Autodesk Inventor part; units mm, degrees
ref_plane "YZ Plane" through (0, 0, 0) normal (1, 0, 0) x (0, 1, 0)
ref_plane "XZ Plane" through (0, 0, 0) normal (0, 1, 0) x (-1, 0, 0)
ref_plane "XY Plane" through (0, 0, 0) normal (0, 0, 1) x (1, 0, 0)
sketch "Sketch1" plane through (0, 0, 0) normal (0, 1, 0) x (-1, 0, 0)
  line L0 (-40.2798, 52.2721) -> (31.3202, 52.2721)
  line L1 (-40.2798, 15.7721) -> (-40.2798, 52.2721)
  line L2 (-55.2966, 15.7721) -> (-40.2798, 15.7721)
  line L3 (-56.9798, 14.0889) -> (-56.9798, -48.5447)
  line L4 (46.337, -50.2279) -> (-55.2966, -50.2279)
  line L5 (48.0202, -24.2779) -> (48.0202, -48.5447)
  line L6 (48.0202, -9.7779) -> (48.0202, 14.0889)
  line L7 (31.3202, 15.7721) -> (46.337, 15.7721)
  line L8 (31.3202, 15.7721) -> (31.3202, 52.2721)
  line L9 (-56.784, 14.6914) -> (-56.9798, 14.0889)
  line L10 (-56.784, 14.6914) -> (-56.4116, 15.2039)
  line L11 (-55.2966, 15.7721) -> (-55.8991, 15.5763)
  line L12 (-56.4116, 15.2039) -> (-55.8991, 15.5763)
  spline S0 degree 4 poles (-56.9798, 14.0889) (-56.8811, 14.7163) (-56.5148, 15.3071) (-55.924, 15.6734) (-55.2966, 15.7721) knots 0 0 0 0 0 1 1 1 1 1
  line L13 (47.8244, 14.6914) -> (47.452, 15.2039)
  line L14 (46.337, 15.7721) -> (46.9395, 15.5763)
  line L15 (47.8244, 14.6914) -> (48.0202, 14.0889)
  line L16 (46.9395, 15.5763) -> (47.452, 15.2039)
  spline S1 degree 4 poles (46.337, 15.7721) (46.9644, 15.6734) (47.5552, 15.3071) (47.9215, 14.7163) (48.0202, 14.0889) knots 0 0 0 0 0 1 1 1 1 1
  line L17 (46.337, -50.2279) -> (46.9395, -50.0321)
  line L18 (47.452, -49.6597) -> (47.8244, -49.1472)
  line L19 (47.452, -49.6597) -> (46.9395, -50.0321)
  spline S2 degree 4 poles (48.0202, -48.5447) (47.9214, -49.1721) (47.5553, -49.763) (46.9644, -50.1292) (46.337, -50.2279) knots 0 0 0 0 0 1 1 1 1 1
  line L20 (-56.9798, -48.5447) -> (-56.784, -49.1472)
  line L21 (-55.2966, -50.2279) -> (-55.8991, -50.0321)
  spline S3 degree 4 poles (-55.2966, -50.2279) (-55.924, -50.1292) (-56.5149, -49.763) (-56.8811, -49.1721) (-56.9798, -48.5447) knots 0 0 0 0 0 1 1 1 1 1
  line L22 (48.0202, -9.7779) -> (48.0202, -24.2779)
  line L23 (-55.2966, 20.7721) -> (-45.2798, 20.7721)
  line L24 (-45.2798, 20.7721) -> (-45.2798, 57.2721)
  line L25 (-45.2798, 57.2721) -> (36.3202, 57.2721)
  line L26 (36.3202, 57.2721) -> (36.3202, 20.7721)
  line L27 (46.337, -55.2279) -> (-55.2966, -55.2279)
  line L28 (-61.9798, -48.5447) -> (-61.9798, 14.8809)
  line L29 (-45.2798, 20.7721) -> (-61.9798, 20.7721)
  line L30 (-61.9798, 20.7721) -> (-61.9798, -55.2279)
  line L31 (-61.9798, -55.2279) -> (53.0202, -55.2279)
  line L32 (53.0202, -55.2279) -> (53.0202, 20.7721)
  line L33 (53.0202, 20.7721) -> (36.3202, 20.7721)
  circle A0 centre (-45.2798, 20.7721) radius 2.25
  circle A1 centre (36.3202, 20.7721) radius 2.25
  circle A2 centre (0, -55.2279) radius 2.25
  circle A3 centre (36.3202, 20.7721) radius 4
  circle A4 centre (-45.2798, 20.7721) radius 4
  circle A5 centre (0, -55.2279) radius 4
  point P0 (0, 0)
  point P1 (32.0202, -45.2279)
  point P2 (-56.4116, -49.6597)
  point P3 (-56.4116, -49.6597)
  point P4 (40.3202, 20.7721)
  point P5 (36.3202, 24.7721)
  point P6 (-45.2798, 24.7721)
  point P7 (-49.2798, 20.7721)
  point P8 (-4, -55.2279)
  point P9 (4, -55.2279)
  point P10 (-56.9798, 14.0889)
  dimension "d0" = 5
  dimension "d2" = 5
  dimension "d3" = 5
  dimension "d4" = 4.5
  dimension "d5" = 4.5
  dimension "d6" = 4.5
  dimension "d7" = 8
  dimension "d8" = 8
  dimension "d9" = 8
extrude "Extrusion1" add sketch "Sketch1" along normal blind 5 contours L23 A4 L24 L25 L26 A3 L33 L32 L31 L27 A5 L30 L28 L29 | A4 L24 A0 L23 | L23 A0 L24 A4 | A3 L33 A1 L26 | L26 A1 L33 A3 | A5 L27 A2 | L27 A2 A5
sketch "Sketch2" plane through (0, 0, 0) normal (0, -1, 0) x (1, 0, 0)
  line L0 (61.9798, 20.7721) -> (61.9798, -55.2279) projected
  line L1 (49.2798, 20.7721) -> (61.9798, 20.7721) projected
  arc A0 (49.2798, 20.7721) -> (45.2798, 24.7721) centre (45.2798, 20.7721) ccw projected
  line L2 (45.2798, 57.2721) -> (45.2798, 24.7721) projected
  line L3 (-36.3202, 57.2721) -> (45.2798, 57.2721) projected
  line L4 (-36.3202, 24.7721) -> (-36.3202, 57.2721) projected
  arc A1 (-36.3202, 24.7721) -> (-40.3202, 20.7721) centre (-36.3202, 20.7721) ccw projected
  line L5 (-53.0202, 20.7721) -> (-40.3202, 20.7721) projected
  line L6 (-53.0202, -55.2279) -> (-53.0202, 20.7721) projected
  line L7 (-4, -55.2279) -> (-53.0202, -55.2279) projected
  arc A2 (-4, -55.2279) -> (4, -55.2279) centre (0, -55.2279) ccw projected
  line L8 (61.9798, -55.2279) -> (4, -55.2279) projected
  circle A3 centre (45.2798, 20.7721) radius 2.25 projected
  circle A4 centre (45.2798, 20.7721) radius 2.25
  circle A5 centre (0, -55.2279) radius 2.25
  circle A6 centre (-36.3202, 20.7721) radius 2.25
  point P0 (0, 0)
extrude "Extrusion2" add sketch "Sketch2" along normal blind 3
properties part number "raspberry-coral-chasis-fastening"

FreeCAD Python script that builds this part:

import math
import FreeCAD as App
import Part
import Sketcher
from FreeCAD import Vector
Q = App.Units.Quantity

doc = App.newDocument("Part")
body = doc.addObject("PartDesign::Body", "Body")

# Sketch on XZ plane
sketch1 = body.newObject("Sketcher::SketchObject", "Sketch")
sketch1.AttachmentSupport = (doc.getObject("XZ_Plane"), [""])
sketch1.MapMode = "FlatFace"
sketch1.addGeometry([
    Part.LineSegment(Vector(49.2798, 20.7721, 0), Vector(61.9798, 20.7721, 0)),  # 0
    Part.LineSegment(Vector(61.9798, 20.7721, 0), Vector(61.9798, -55.2279, 0)),  # 1
    Part.LineSegment(Vector(61.9798, -55.2279, 0), Vector(4, -55.2279, 0)),  # 2
    Part.ArcOfCircle(Part.Circle(Vector(0, -55.2279, 0), Vector(0, 0, 1), 4), math.radians(180), math.radians(360)),  # 3
    Part.LineSegment(Vector(-4, -55.2279, 0), Vector(-53.0202, -55.2279, 0)),  # 4
    Part.LineSegment(Vector(-53.0202, -55.2279, 0), Vector(-53.0202, 20.7721, 0)),  # 5
    Part.LineSegment(Vector(-53.0202, 20.7721, 0), Vector(-40.3202, 20.7721, 0)),  # 6
    Part.ArcOfCircle(Part.Circle(Vector(-36.3202, 20.7721, 0), Vector(0, 0, 1), 4), math.radians(90), math.radians(180)),  # 7
    Part.LineSegment(Vector(-36.3202, 24.7721, 0), Vector(-36.3202, 57.2721, 0)),  # 8
    Part.LineSegment(Vector(-36.3202, 57.2721, 0), Vector(45.2798, 57.2721, 0)),  # 9
    Part.LineSegment(Vector(45.2798, 57.2721, 0), Vector(45.2798, 24.7721, 0)),  # 10
    Part.ArcOfCircle(Part.Circle(Vector(45.2798, 20.7721, 0), Vector(0, 0, 1), 4), math.radians(0), math.radians(90)),  # 11
    Part.LineSegment(Vector(40.2798, 15.7721, 0), Vector(40.2798, 52.2721, 0)),  # 12
    Part.LineSegment(Vector(40.2798, 52.2721, 0), Vector(-31.3202, 52.2721, 0)),  # 13
    Part.LineSegment(Vector(-31.3202, 52.2721, 0), Vector(-31.3202, 15.7721, 0)),  # 14
    Part.LineSegment(Vector(-31.3202, 15.7721, 0), Vector(-46.337, 15.7721, 0)),  # 15
    Part.BSplineCurve([Vector(-46.337, 15.7721, 0), Vector(-46.493852, 15.747425, 0), Vector(-46.648416, 15.706024, 0), Vector(-46.797757, 15.648572, 0), Vector(-46.939503, 15.576306, 0)], [5, 5], [0, 0.250002766], False, 4, [1, 1, 1, 1, 1], False),  # 16
    Part.BSplineCurve([Vector(-46.939503, 15.576306, 0), Vector(-47.081247, 15.504042, 0), Vector(-47.215396, 15.416967, 0), Vector(-47.339582, 15.316318, 0), Vector(-47.452, 15.2039, 0)], [5, 5], [0.250002766, 0.5], False, 4, [1, 1, 1, 1, 1], False),  # 17
    Part.BSplineCurve([Vector(-47.452, 15.2039, 0), Vector(-47.564418, 15.091482, 0), Vector(-47.665067, 14.967296, 0), Vector(-47.752142, 14.833147, 0), Vector(-47.824406, 14.691403, 0)], [5, 5], [0.5, 0.749997234], False, 4, [1, 1, 1, 1, 1], False),  # 18
    Part.BSplineCurve([Vector(-47.824406, 14.691403, 0), Vector(-47.896672, 14.549657, 0), Vector(-47.954124, 14.400316, 0), Vector(-47.995525, 14.245752, 0), Vector(-48.0202, 14.0889, 0)], [5, 5], [0.749997234, 1], False, 4, [1, 1, 1, 1, 1], False),  # 19
    Part.LineSegment(Vector(-48.0202, 14.0889, 0), Vector(-48.0202, -48.5447, 0)),  # 20
    Part.BSplineCurve([Vector(-48.0202, -48.5447, 0), Vector(-47.995501, -48.701545, 0), Vector(-47.954097, -48.856108, 0), Vector(-47.896651, -49.005451, 0), Vector(-47.824398, -49.147199, 0)], [5, 5], [0, 0.249991621], False, 4, [1, 1, 1, 1, 1], False),  # 21
    Part.BSplineCurve([Vector(-47.824398, -49.147199, 0), Vector(-47.752142, -49.288953, 0), Vector(-47.665077, -49.423112, 0), Vector(-47.564437, -49.547305, 0), Vector(-47.452025, -49.659725, 0)], [5, 5], [0.249991621, 0.49999305], False, 4, [1, 1, 1, 1, 1], False),  # 22
    Part.BSplineCurve([Vector(-47.452025, -49.659725, 0), Vector(-47.339611, -49.772148, 0), Vector(-47.215424, -49.872798, 0), Vector(-47.081268, -49.959871, 0), Vector(-46.939515, -50.03213, 0)], [5, 5], [0.49999305, 0.749999212], False, 4, [1, 1, 1, 1, 1], False),  # 23
    Part.BSplineCurve([Vector(-46.939515, -50.03213, 0), Vector(-46.797765, -50.104387, 0), Vector(-46.64842, -50.161831, 0), Vector(-46.49385, -50.203225, 0), Vector(-46.337, -50.2279, 0)], [5, 5], [0.749999212, 1], False, 4, [1, 1, 1, 1, 1], False),  # 24
    Part.LineSegment(Vector(-46.337, -50.2279, 0), Vector(55.2966, -50.2279, 0)),  # 25
    Part.BSplineCurve([Vector(55.2966, -50.2279, 0), Vector(55.453449, -50.203225, 0), Vector(55.608018, -50.161832, 0), Vector(55.757364, -50.104388, 0), Vector(55.899116, -50.032131, 0)], [5, 5], [0, 0.249999147], False, 4, [1, 1, 1, 1, 1], False),  # 26
    Part.BSplineCurve([Vector(55.899116, -50.032131, 0), Vector(56.182622, -49.887617, 0), Vector(56.435749, -49.683849, 0), Vector(56.639517, -49.430722, 0), Vector(56.784031, -49.147216, 0)], [5, 5], [0.249999147, 0.750000853], False, 4, [1, 1, 1, 1, 1], False),  # 27
    Part.BSplineCurve([Vector(56.784031, -49.147216, 0), Vector(56.856288, -49.005464, 0), Vector(56.913732, -48.856118, 0), Vector(56.955125, -48.701549, 0), Vector(56.9798, -48.5447, 0)], [5, 5], [0.750000853, 1], False, 4, [1, 1, 1, 1, 1], False),  # 28
    Part.LineSegment(Vector(56.9798, -48.5447, 0), Vector(56.9798, 14.0889, 0)),  # 29
    Part.BSplineCurve([Vector(56.9798, 14.0889, 0), Vector(56.955125, 14.245752, 0), Vector(56.913724, 14.400316, 0), Vector(56.856272, 14.549657, 0), Vector(56.784006, 14.691403, 0)], [5, 5], [0, 0.250002766], False, 4, [1, 1, 1, 1, 1], False),  # 30
    Part.BSplineCurve([Vector(56.784006, 14.691403, 0), Vector(56.711742, 14.833147, 0), Vector(56.624667, 14.967296, 0), Vector(56.524018, 15.091482, 0), Vector(56.4116, 15.2039, 0)], [5, 5], [0.250002766, 0.5], False, 4, [1, 1, 1, 1, 1], False),  # 31
    Part.BSplineCurve([Vector(56.4116, 15.2039, 0), Vector(56.299182, 15.316318, 0), Vector(56.174996, 15.416967, 0), Vector(56.040847, 15.504042, 0), Vector(55.899103, 15.576306, 0)], [5, 5], [0.5, 0.749997234], False, 4, [1, 1, 1, 1, 1], False),  # 32
    Part.BSplineCurve([Vector(55.899103, 15.576306, 0), Vector(55.757357, 15.648572, 0), Vector(55.608016, 15.706024, 0), Vector(55.453452, 15.747425, 0), Vector(55.2966, 15.7721, 0)], [5, 5], [0.749997234, 1], False, 4, [1, 1, 1, 1, 1], False),  # 33
    Part.LineSegment(Vector(55.2966, 15.7721, 0), Vector(40.2798, 15.7721, 0)),  # 34
    Part.Circle(Vector(45.2798, 20.7721, 0), Vector(0, 0, 1), 2.25),  # 35
    Part.Circle(Vector(-36.3202, 20.7721, 0), Vector(0, 0, 1), 2.25),  # 36
    Part.Circle(Vector(0, -55.2279, 0), Vector(0, 0, 1), 2.25),  # 37
], False)
sketch1.addConstraint([
    Sketcher.Constraint("Block", 16),
    Sketcher.Constraint("Block", 17),
    Sketcher.Constraint("Block", 18),
    Sketcher.Constraint("Block", 19),
    Sketcher.Constraint("Block", 21),
    Sketcher.Constraint("Block", 22),
    Sketcher.Constraint("Block", 23),
    Sketcher.Constraint("Block", 24),
    Sketcher.Constraint("Block", 26),
    Sketcher.Constraint("Block", 27),
    Sketcher.Constraint("Block", 28),
    Sketcher.Constraint("Block", 30),
    Sketcher.Constraint("Block", 31),
    Sketcher.Constraint("Block", 32),
    Sketcher.Constraint("Block", 33),
    Sketcher.Constraint("Coincident", 0, 2, 1, 1),
    Sketcher.Constraint("Coincident", 1, 2, 2, 1),
    Sketcher.Constraint("Coincident", 2, 2, 3, 2),
    Sketcher.Constraint("Coincident", 3, 1, 4, 1),
    Sketcher.Constraint("Coincident", 4, 2, 5, 1),
    Sketcher.Constraint("Coincident", 5, 2, 6, 1),
    Sketcher.Constraint("Coincident", 6, 2, 7, 2),
    Sketcher.Constraint("Coincident", 7, 1, 8, 1),
    Sketcher.Constraint("Coincident", 8, 2, 9, 1),
    Sketcher.Constraint("Coincident", 9, 2, 10, 1),
    Sketcher.Constraint("Coincident", 10, 2, 11, 2),
    Sketcher.Constraint("Coincident", 11, 1, 0, 1),
    Sketcher.Constraint("Coincident", 12, 2, 13, 1),
    Sketcher.Constraint("Coincident", 13, 2, 14, 1),
    Sketcher.Constraint("Coincident", 14, 2, 15, 1),
    Sketcher.Constraint("Coincident", 15, 2, 16, 1),
    Sketcher.Constraint("Coincident", 19, 2, 20, 1),
    Sketcher.Constraint("Coincident", 20, 2, 21, 1),
    Sketcher.Constraint("Coincident", 24, 2, 25, 1),
    Sketcher.Constraint("Coincident", 25, 2, 26, 1),
    Sketcher.Constraint("Coincident", 28, 2, 29, 1),
    Sketcher.Constraint("Coincident", 29, 2, 30, 1),
    Sketcher.Constraint("Coincident", 33, 2, 34, 1),
    Sketcher.Constraint("Coincident", 34, 2, 12, 1),
    Sketcher.Constraint("Horizontal", 0),
    Sketcher.Constraint("Vertical", 1),
    Sketcher.Constraint("Horizontal", 2),
    Sketcher.Constraint("Horizontal", 4),
    Sketcher.Constraint("Vertical", 5),
    Sketcher.Constraint("Horizontal", 6),
    Sketcher.Constraint("Vertical", 8),
    Sketcher.Constraint("Horizontal", 9),
    Sketcher.Constraint("Vertical", 10),
    Sketcher.Constraint("Vertical", 12),
    Sketcher.Constraint("Horizontal", 13),
    Sketcher.Constraint("Vertical", 14),
    Sketcher.Constraint("Horizontal", 15),
    Sketcher.Constraint("Horizontal", 34),
    Sketcher.Constraint("Coincident", 35, 3, 11, 3),
    Sketcher.Constraint("Coincident", 36, 3, 7, 3),
    Sketcher.Constraint("Coincident", 37, 3, 3, 3),
    Sketcher.Constraint("PointOnObject", 3, 3, -2),
    Sketcher.Constraint("Radius", 3, Q("4 mm")),
    Sketcher.Constraint("Radius", 7, Q("4 mm")),
    Sketcher.Constraint("Radius", 11, Q("4 mm")),
    Sketcher.Constraint("Diameter", 35, Q("4.5 mm")),
    Sketcher.Constraint("Diameter", 36, Q("4.5 mm")),
    Sketcher.Constraint("Diameter", 37, Q("4.5 mm")),
    Sketcher.Constraint("DistanceX", 12, 2, 9, 2, Q("5 mm")),
    Sketcher.Constraint("DistanceY", 12, 2, 9, 2, Q("5 mm")),
    Sketcher.Constraint("DistanceX", 12, 2, 11, 3, Q("5 mm")),
    Sketcher.Constraint("DistanceX", 8, 2, 13, 2, Q("5 mm")),
    Sketcher.Constraint("DistanceX", 7, 3, 13, 2, Q("5 mm")),
    Sketcher.Constraint("DistanceY", 14, 2, 7, 3, Q("5 mm")),
    Sketcher.Constraint("DistanceY", 14, 2, 6, 2, Q("5 mm")),
    Sketcher.Constraint("DistanceX", 4, 2, 20, 2, Q("5 mm")),
    Sketcher.Constraint("DistanceY", 1, 2, 25, 2, Q("5 mm")),
    Sketcher.Constraint("DistanceY", 3, 3, 25, 2, Q("5 mm")),
    Sketcher.Constraint("DistanceY", 3, 1, 25, 2, Q("5 mm")),
    Sketcher.Constraint("DistanceX", 29, 2, 0, 2, Q("5 mm")),
    Sketcher.Constraint("DistanceY", 34, 2, 11, 3, Q("5 mm")),
    Sketcher.Constraint("DistanceY", 34, 2, 11, 1, Q("5 mm")),
    Sketcher.Constraint("DistanceX", 0, 1, 0, 2, Q("12.7 mm")),
    Sketcher.Constraint("DistanceX", 6, 1, 6, 2, Q("12.7 mm")),
    Sketcher.Constraint("DistanceY", 8, 1, 8, 2, Q("32.5 mm")),
])
pad1 = body.newObject("PartDesign::Pad", "Pad")
pad1.Profile = sketch1
pad1.Length = 5
pad1.Reversed = True

# Sketch on XZ plane
sketch2 = body.newObject("Sketcher::SketchObject", "Sketch001")
sketch2.AttachmentSupport = (doc.getObject("XZ_Plane"), [""])
sketch2.MapMode = "FlatFace"
sketch2.addGeometry([
    Part.LineSegment(Vector(61.9798, -55.2279, 0), Vector(61.9798, 20.7721, 0)),  # 0
    Part.LineSegment(Vector(61.9798, 20.7721, 0), Vector(49.2798, 20.7721, 0)),  # 1
    Part.ArcOfCircle(Part.Circle(Vector(45.2798, 20.7721, 0), Vector(0, 0, 1), 4), math.radians(0), math.radians(90)),  # 2
    Part.LineSegment(Vector(45.2798, 24.7721, 0), Vector(45.2798, 57.2721, 0)),  # 3
    Part.LineSegment(Vector(45.2798, 57.2721, 0), Vector(-36.3202, 57.2721, 0)),  # 4
    Part.LineSegment(Vector(-36.3202, 57.2721, 0), Vector(-36.3202, 24.7721, 0)),  # 5
    Part.ArcOfCircle(Part.Circle(Vector(-36.3202, 20.7721, 0), Vector(0, 0, 1), 4), math.radians(90), math.radians(180)),  # 6
    Part.LineSegment(Vector(-40.3202, 20.7721, 0), Vector(-53.0202, 20.7721, 0)),  # 7
    Part.LineSegment(Vector(-53.0202, 20.7721, 0), Vector(-53.0202, -55.2279, 0)),  # 8
    Part.LineSegment(Vector(-53.0202, -55.2279, 0), Vector(-4, -55.2279, 0)),  # 9
    Part.ArcOfCircle(Part.Circle(Vector(0, -55.2279, 0), Vector(0, 0, 1), 4), math.radians(180), math.radians(360)),  # 10
    Part.LineSegment(Vector(4, -55.2279, 0), Vector(61.9798, -55.2279, 0)),  # 11
    Part.Circle(Vector(0, -55.2279, 0), Vector(0, 0, 1), 2.25),  # 12
    Part.Circle(Vector(-36.3202, 20.7721, 0), Vector(0, 0, 1), 2.25),  # 13
    Part.Circle(Vector(45.2798, 20.7721, 0), Vector(0, 0, 1), 2.25),  # 14
], False)
sketch2.addConstraint([
    Sketcher.Constraint("Coincident", 0, 2, 1, 1),
    Sketcher.Constraint("Coincident", 1, 2, 2, 1),
    Sketcher.Constraint("Coincident", 2, 2, 3, 1),
    Sketcher.Constraint("Coincident", 3, 2, 4, 1),
    Sketcher.Constraint("Coincident", 4, 2, 5, 1),
    Sketcher.Constraint("Coincident", 5, 2, 6, 1),
    Sketcher.Constraint("Coincident", 6, 2, 7, 1),
    Sketcher.Constraint("Coincident", 7, 2, 8, 1),
    Sketcher.Constraint("Coincident", 8, 2, 9, 1),
    Sketcher.Constraint("Coincident", 9, 2, 10, 1),
    Sketcher.Constraint("Coincident", 10, 2, 11, 1),
    Sketcher.Constraint("Coincident", 11, 2, 0, 1),
    Sketcher.Constraint("Vertical", 0),
    Sketcher.Constraint("Horizontal", 1),
    Sketcher.Constraint("Vertical", 3),
    Sketcher.Constraint("Horizontal", 4),
    Sketcher.Constraint("Vertical", 5),
    Sketcher.Constraint("Horizontal", 7),
    Sketcher.Constraint("Vertical", 8),
    Sketcher.Constraint("Horizontal", 9),
    Sketcher.Constraint("Horizontal", 11),
    Sketcher.Constraint("Coincident", 12, 3, 10, 3),
    Sketcher.Constraint("Coincident", 13, 3, 6, 3),
    Sketcher.Constraint("Coincident", 14, 3, 2, 3),
    Sketcher.Constraint("Equal", 2, 6),
    Sketcher.Constraint("Equal", 6, 10),
    Sketcher.Constraint("Equal", 12, 13),
    Sketcher.Constraint("Equal", 13, 14),
    Sketcher.Constraint("Symmetric", 9, 2, 10, 2, -2),
    Sketcher.Constraint("Horizontal", 2, 3, 6, 3),
    Sketcher.Constraint("Horizontal", 14, 3, 0, 2),
    Sketcher.Constraint("Horizontal", 1, 2, 6, 2),
    Sketcher.Constraint("Horizontal", 12, 3, 8, 2),
    Sketcher.Constraint("Vertical", 14, 3, 2, 2),
    Sketcher.Constraint("Vertical", 13, 3, 4, 2),
    Sketcher.Constraint("Equal", 1, 7),
    Sketcher.Constraint("Radius", 2, Q("4 mm")),
    Sketcher.Constraint("Diameter", 12, Q("4.5 mm")),
    Sketcher.Constraint("DistanceY", 0, 1, 0, 2, Q("76 mm")),
    Sketcher.Constraint("DistanceX", 1, 2, 1, 1, Q("12.7 mm")),
    Sketcher.Constraint("DistanceX", 4, 2, 4, 1, Q("81.6 mm")),
    Sketcher.Constraint("DistanceY", 3, 1, 3, 2, Q("32.5 mm")),
    Sketcher.Constraint("DistanceX", 9, 1, 9, 2, Q("49.0202 mm")),
    Sketcher.Constraint("DistanceY", -1, 1, 2, 3, Q("20.772 mm")),
])
pad2 = body.newObject("PartDesign::Pad", "Pad001")
pad2.Profile = sketch2
pad2.Length = 3

doc.recompute()
